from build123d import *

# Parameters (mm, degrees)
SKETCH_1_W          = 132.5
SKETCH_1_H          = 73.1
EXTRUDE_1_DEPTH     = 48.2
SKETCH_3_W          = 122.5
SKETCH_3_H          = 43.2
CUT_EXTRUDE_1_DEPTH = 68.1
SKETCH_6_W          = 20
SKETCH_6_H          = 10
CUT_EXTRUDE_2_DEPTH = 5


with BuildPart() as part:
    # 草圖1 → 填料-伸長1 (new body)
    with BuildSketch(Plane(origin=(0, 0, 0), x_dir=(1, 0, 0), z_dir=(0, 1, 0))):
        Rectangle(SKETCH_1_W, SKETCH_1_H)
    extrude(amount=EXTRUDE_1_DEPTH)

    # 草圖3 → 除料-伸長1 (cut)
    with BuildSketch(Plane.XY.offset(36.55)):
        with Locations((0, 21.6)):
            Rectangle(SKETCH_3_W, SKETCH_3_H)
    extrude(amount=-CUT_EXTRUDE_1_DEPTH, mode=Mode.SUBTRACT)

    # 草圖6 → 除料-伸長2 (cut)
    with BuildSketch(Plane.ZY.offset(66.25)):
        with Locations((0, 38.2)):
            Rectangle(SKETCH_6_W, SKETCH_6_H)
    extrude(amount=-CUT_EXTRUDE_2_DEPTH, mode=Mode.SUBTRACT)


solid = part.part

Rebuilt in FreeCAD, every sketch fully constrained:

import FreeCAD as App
import Part
import Sketcher

doc = App.newDocument("Part")
body = doc.addObject("PartDesign::Body", "Body")

sketch1 = doc.addObject("Sketcher::SketchObject", "Sketch")
body.addObject(sketch1)
sketch1.AttachmentSupport = (doc.XZ_Plane, [""])
sketch1.MapMode = "FlatFace"
sketch1.addGeometry(Part.LineSegment(App.Vector(-66, -37, 0), App.Vector(-66, 37, 0)), False)
sketch1.addGeometry(Part.LineSegment(App.Vector(-66, 37, 0), App.Vector(66, 37, 0)), False)
sketch1.addGeometry(Part.LineSegment(App.Vector(66, 37, 0), App.Vector(66, -37, 0)), False)
sketch1.addGeometry(Part.LineSegment(App.Vector(66, -37, 0), App.Vector(-66, -37, 0)), False)
sketch1.addConstraint(Sketcher.Constraint("Coincident", 0, 2, 1, 1))
sketch1.addConstraint(Sketcher.Constraint("Coincident", 1, 2, 2, 1))
sketch1.addConstraint(Sketcher.Constraint("Coincident", 2, 2, 3, 1))
sketch1.addConstraint(Sketcher.Constraint("Coincident", 3, 2, 0, 1))
sketch1.addConstraint(Sketcher.Constraint("Vertical", 0))
sketch1.addConstraint(Sketcher.Constraint("Horizontal", 1))
sketch1.addConstraint(Sketcher.Constraint("Vertical", 2))
sketch1.addConstraint(Sketcher.Constraint("Horizontal", 3))
sketch1.addConstraint(Sketcher.Constraint("Symmetric", 0, 2, 2, 2, -1, 1))
sketch1.addConstraint(Sketcher.Constraint("DistanceX", 1, 1, 1, 2, 132.5))
sketch1.addConstraint(Sketcher.Constraint("DistanceY", 0, 1, 0, 2, 73.1))
pad1 = doc.addObject("PartDesign::Pad", "Pad")
body.addObject(pad1)
pad1.Profile = sketch1
pad1.Length = 48.2
pad1.Reversed = True

sketch2 = doc.addObject("Sketcher::SketchObject", "Sketch001")
body.addObject(sketch2)
sketch2.AttachmentSupport = (doc.XY_Plane, [""])
sketch2.MapMode = "FlatFace"
sketch2.AttachmentOffset = App.Placement(App.Vector(0, 0, 36.55), App.Rotation())
sketch2.addGeometry(Part.LineSegment(App.Vector(-61, 43, 0), App.Vector(-61, 0, 0)), False)
sketch2.addGeometry(Part.LineSegment(App.Vector(-61, 0, 0), App.Vector(61, 0, 0)), False)
sketch2.addGeometry(Part.LineSegment(App.Vector(61, 0, 0), App.Vector(61, 43, 0)), False)
sketch2.addGeometry(Part.LineSegment(App.Vector(61, 43, 0), App.Vector(-61, 43, 0)), False)
sketch2.addConstraint(Sketcher.Constraint("Coincident", 0, 2, 1, 1))
sketch2.addConstraint(Sketcher.Constraint("Coincident", 1, 2, 2, 1))
sketch2.addConstraint(Sketcher.Constraint("Coincident", 2, 2, 3, 1))
sketch2.addConstraint(Sketcher.Constraint("Coincident", 3, 2, 0, 1))
sketch2.addConstraint(Sketcher.Constraint("Vertical", 0))
sketch2.addConstraint(Sketcher.Constraint("Horizontal", 1))
sketch2.addConstraint(Sketcher.Constraint("Vertical", 2))
sketch2.addConstraint(Sketcher.Constraint("Horizontal", 3))
sketch2.addConstraint(Sketcher.Constraint("Symmetric", 0, 2, 1, 2, -1, 1))
sketch2.addConstraint(Sketcher.Constraint("DistanceX", 1, 1, 1, 2, 122.5))
sketch2.addConstraint(Sketcher.Constraint("DistanceY", 0, 2, 0, 1, 43.2))
pocket1 = doc.addObject("PartDesign::Pocket", "Pocket")
body.addObject(pocket1)
pocket1.Profile = sketch2
pocket1.Length = 68.1

sketch3 = doc.addObject("Sketcher::SketchObject", "Sketch002")
body.addObject(sketch3)
sketch3.AttachmentSupport = (doc.YZ_Plane, [""])
sketch3.MapMode = "FlatFace"
sketch3.AttachmentOffset = App.Placement(App.Vector(0, 0, -66.25), App.Rotation())
sketch3.addGeometry(Part.LineSegment(App.Vector(43, -10, 0), App.Vector(33, -10, 0)), False)
sketch3.addGeometry(Part.LineSegment(App.Vector(33, -10, 0), App.Vector(33, 10, 0)), False)
sketch3.addGeometry(Part.LineSegment(App.Vector(33, 10, 0), App.Vector(43, 10, 0)), False)
sketch3.addGeometry(Part.LineSegment(App.Vector(43, 10, 0), App.Vector(43, -10, 0)), False)
sketch3.addConstraint(Sketcher.Constraint("Coincident", 0, 2, 1, 1))
sketch3.addConstraint(Sketcher.Constraint("Coincident", 1, 2, 2, 1))
sketch3.addConstraint(Sketcher.Constraint("Coincident", 2, 2, 3, 1))
sketch3.addConstraint(Sketcher.Constraint("Coincident", 3, 2, 0, 1))
sketch3.addConstraint(Sketcher.Constraint("Horizontal", 0))
sketch3.addConstraint(Sketcher.Constraint("Vertical", 1))
sketch3.addConstraint(Sketcher.Constraint("Horizontal", 2))
sketch3.addConstraint(Sketcher.Constraint("Vertical", 3))
sketch3.addConstraint(Sketcher.Constraint("DistanceX", 0, 2, 0, 1, 10.0))
sketch3.addConstraint(Sketcher.Constraint("DistanceY", 1, 1, 1, 2, 20.0))
sketch3.addConstraint(Sketcher.Constraint("DistanceY", 0, 2, -1, 1, 10.0))
sketch3.addConstraint(Sketcher.Constraint("DistanceX", -1, 1, 0, 2, 33.2))
pocket2 = doc.addObject("PartDesign::Pocket", "Pocket001")
body.addObject(pocket2)
pocket2.Profile = sketch3
pocket2.Length = 5
pocket2.Reversed = True

doc.recompute()
